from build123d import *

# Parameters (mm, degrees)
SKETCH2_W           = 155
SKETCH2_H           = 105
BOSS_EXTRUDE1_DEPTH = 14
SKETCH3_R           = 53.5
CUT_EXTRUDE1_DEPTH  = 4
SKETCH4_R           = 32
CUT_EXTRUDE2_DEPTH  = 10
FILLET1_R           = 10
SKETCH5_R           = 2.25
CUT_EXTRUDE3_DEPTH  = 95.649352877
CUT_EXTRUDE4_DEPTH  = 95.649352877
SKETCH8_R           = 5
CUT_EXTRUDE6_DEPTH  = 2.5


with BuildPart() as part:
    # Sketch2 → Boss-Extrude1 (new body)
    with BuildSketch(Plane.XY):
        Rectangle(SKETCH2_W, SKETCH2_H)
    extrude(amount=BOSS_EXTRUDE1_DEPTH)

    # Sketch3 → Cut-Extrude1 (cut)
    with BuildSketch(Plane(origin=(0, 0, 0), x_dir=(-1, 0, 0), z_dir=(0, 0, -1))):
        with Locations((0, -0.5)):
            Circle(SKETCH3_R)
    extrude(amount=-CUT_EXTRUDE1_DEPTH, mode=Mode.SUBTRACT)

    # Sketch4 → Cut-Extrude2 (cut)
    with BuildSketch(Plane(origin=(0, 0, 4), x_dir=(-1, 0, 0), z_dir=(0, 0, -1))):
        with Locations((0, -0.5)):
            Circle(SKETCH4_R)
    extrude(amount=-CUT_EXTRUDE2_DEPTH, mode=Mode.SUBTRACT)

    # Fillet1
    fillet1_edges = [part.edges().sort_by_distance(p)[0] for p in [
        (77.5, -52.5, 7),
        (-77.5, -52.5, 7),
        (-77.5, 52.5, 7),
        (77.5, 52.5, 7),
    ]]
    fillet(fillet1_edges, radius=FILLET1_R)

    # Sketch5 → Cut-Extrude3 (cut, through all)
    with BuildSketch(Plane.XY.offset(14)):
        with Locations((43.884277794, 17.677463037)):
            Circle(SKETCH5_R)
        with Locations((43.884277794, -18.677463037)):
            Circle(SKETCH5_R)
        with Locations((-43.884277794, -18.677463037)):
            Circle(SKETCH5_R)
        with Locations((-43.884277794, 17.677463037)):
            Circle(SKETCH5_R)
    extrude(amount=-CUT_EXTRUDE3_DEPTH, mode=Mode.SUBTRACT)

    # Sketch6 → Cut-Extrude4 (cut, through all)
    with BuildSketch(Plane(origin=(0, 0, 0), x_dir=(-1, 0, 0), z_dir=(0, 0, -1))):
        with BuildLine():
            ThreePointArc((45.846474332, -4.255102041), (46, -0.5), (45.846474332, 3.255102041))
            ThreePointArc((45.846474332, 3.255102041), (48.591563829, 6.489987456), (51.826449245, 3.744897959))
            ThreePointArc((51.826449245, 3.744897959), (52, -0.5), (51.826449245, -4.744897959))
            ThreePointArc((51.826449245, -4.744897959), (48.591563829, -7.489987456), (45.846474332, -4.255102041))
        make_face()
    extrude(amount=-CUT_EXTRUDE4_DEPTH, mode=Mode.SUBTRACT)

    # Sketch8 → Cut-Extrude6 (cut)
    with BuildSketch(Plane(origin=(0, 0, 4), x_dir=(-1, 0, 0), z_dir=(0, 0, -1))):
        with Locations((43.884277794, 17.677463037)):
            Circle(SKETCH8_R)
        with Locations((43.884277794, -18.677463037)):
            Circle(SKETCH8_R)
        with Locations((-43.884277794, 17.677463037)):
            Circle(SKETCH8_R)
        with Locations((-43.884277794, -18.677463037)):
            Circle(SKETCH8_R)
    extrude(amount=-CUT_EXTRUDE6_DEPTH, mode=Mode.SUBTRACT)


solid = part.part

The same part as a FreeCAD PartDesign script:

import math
import FreeCAD as App
import Part
import Sketcher
Q = App.Units.Quantity


def edges_at(feature, points):
    """Names of the edges that pass closest to the given points."""
    edges = feature.Shape.Edges
    near = lambda p: min(range(len(edges)), key=lambda i: edges[i].distToShape(Part.Vertex(*p))[0])
    return sorted({f"Edge{near(p) + 1}" for p in points})

doc = App.newDocument("Part")
params = doc.addObject("Spreadsheet::Sheet", "Params")
for row, (alias, value) in enumerate([
    ("sketch1_width", "155 mm"),
    ("sketch1_height", "105 mm"),
    ("pad1_length", "14 mm"),
    ("sketch2_diameter", "107 mm"),
    ("pocket1_length", "4 mm"),
    ("sketch3_diameter", "64 mm"),
    ("pocket2_length", "10 mm"),
    ("fillet_radius", "10 mm"),
    ("sketch4_diameter", "4.5 mm"),
    ("sketch5_radius", "46 mm"),
    ("sketch5_radius2", "3 mm"),
    ("sketch6_diameter", "10 mm"),
    ("pocket5_length", "2.5 mm"),
], start=1):
    params.set(f"A{row}", alias)
    params.set(f"B{row}", "=" + value)
    params.setAlias(f"B{row}", alias)

body = doc.addObject("PartDesign::Body", "Body")

sketch1 = doc.addObject("Sketcher::SketchObject", "Sketch")
body.addObject(sketch1)
sketch1.AttachmentSupport = (doc.XY_Plane, [""])
sketch1.MapMode = "FlatFace"
sketch1.addGeometry(Part.LineSegment(App.Vector(-78, 52, 0), App.Vector(-78, -52, 0)), False)
sketch1.addGeometry(Part.LineSegment(App.Vector(-78, -52, 0), App.Vector(78, -52, 0)), False)
sketch1.addGeometry(Part.LineSegment(App.Vector(78, -52, 0), App.Vector(78, 52, 0)), False)
sketch1.addGeometry(Part.LineSegment(App.Vector(78, 52, 0), App.Vector(-78, 52, 0)), False)
sketch1.addConstraint(Sketcher.Constraint("Coincident", 0, 2, 1, 1))
sketch1.addConstraint(Sketcher.Constraint("Coincident", 1, 2, 2, 1))
sketch1.addConstraint(Sketcher.Constraint("Coincident", 2, 2, 3, 1))
sketch1.addConstraint(Sketcher.Constraint("Coincident", 3, 2, 0, 1))
sketch1.addConstraint(Sketcher.Constraint("Vertical", 0))
sketch1.addConstraint(Sketcher.Constraint("Horizontal", 1))
sketch1.addConstraint(Sketcher.Constraint("Vertical", 2))
sketch1.addConstraint(Sketcher.Constraint("Horizontal", 3))
sketch1.addConstraint(Sketcher.Constraint("Symmetric", 0, 2, 2, 2, -1, 1))
sketch1.addConstraint(Sketcher.Constraint("DistanceX", 1, 1, 1, 2, Q("155 mm")))
sketch1.addConstraint(Sketcher.Constraint("DistanceY", 0, 2, 0, 1, Q("105 mm")))
sketch1.setExpression("Constraints[9]", "Params.sketch1_width")
sketch1.setExpression("Constraints[10]", "Params.sketch1_height")
pad1 = doc.addObject("PartDesign::Pad", "Pad")
body.addObject(pad1)
pad1.Profile = sketch1
pad1.setExpression("Length", "Params.pad1_length")

sketch2 = doc.addObject("Sketcher::SketchObject", "Sketch001")
body.addObject(sketch2)
sketch2.AttachmentSupport = (doc.XY_Plane, [""])
sketch2.MapMode = "FlatFace"
sketch2.addGeometry(Part.Circle(App.Vector(0, 0, 0), App.Vector(0, 0, 1), 54), False)
sketch2.addConstraint(Sketcher.Constraint("PointOnObject", 0, 3, -2))
sketch2.addConstraint(Sketcher.Constraint("Diameter", 0, Q("107 mm")))
sketch2.addConstraint(Sketcher.Constraint("DistanceY", 0, 3, -1, 1, Q("0.5 mm")))
sketch2.setExpression("Constraints[1]", "Params.sketch2_diameter")
pocket1 = doc.addObject("PartDesign::Pocket", "Pocket")
body.addObject(pocket1)
pocket1.Profile = sketch2
pocket1.setExpression("Length", "Params.pocket1_length")
pocket1.Reversed = True

sketch3 = doc.addObject("Sketcher::SketchObject", "Sketch002")
body.addObject(sketch3)
sketch3.AttachmentSupport = (doc.XY_Plane, [""])
sketch3.MapMode = "FlatFace"
sketch3.AttachmentOffset = App.Placement(App.Vector(0, 0, 4), App.Rotation())
sketch3.addGeometry(Part.Circle(App.Vector(0, 0, 0), App.Vector(0, 0, 1), 32), False)
sketch3.addConstraint(Sketcher.Constraint("PointOnObject", 0, 3, -2))
sketch3.addConstraint(Sketcher.Constraint("Diameter", 0, Q("64 mm")))
sketch3.addConstraint(Sketcher.Constraint("DistanceY", 0, 3, -1, 1, Q("0.5 mm")))
sketch3.setExpression("Constraints[1]", "Params.sketch3_diameter")
pocket2 = doc.addObject("PartDesign::Pocket", "Pocket001")
body.addObject(pocket2)
pocket2.Profile = sketch3
pocket2.setExpression("Length", "Params.pocket2_length")
pocket2.Reversed = True
doc.recompute()

fillet = doc.addObject("PartDesign::Fillet", "Fillet")
body.addObject(fillet)
fillet.Base = (pocket2, edges_at(pocket2, [
    (77.5, -52.5, 7),
    (-77.5, -52.5, 7),
    (-77.5, 52.5, 7),
    (77.5, 52.5, 7),
]))
fillet.setExpression("Radius", "Params.fillet_radius")

sketch4 = doc.addObject("Sketcher::SketchObject", "Sketch003")
body.addObject(sketch4)
sketch4.AttachmentSupport = (doc.XY_Plane, [""])
sketch4.MapMode = "FlatFace"
sketch4.AttachmentOffset = App.Placement(App.Vector(0, 0, 14), App.Rotation())
sketch4.addGeometry(Part.Circle(App.Vector(43.9, 17.7, 0), App.Vector(0, 0, 1), 2.2), False)
sketch4.addGeometry(Part.Circle(App.Vector(43.9, -18.7, 0), App.Vector(0, 0, 1), 2.2), False)
sketch4.addGeometry(Part.Circle(App.Vector(-43.9, -18.7, 0), App.Vector(0, 0, 1), 2.2), False)
sketch4.addGeometry(Part.Circle(App.Vector(-43.9, 17.7, 0), App.Vector(0, 0, 1), 2.2), False)
sketch4.addConstraint(Sketcher.Constraint("Equal", 0, 1))
sketch4.addConstraint(Sketcher.Constraint("Equal", 1, 2))
sketch4.addConstraint(Sketcher.Constraint("Equal", 2, 3))
sketch4.addConstraint(Sketcher.Constraint("Symmetric", 1, 3, 2, 3, -2))
sketch4.addConstraint(Sketcher.Constraint("Symmetric", 0, 3, 3, 3, -2))
sketch4.addConstraint(Sketcher.Constraint("Vertical", 0, 3, 1, 3))
sketch4.addConstraint(Sketcher.Constraint("Diameter", 0, Q("4.5 mm")))
sketch4.addConstraint(Sketcher.Constraint("DistanceX", -1, 1, 0, 3, Q("43.884278 mm")))
sketch4.addConstraint(Sketcher.Constraint("DistanceY", -1, 1, 0, 3, Q("17.677463 mm")))
sketch4.addConstraint(Sketcher.Constraint("DistanceY", 1, 3, -1, 1, Q("18.677463 mm")))
sketch4.setExpression("Constraints[6]", "Params.sketch4_diameter")
pocket3 = doc.addObject("PartDesign::Pocket", "Pocket002")
body.addObject(pocket3)
pocket3.Profile = sketch4
pocket3.Type = "ThroughAll"

sketch5 = doc.addObject("Sketcher::SketchObject", "Sketch004")
body.addObject(sketch5)
sketch5.AttachmentSupport = (doc.XY_Plane, [""])
sketch5.MapMode = "FlatFace"
sketch5.addGeometry(Part.ArcOfCircle(Part.Circle(App.Vector(0, -0.5, 0), App.Vector(0, 0, 1), 46), math.radians(175.32), math.radians(184.68)), False)
sketch5.addGeometry(Part.ArcOfCircle(Part.Circle(App.Vector(-48.8, -4.5, 0), App.Vector(0, 0, 1), 3), math.radians(-175), math.radians(5)), False)
sketch5.addGeometry(Part.ArcOfCircle(Part.Circle(App.Vector(0, -0.5, 0), App.Vector(0, 0, 1), 52), math.radians(175.32), math.radians(184.68)), False)
sketch5.addGeometry(Part.ArcOfCircle(Part.Circle(App.Vector(-48.8, 3.5, 0), App.Vector(0, 0, 1), 3), math.radians(-5), math.radians(175)), False)
sketch5.addConstraint(Sketcher.Constraint("Tangent", 0, 2, 1, 2))
sketch5.addConstraint(Sketcher.Constraint("Tangent", 1, 1, 2, 2))
sketch5.addConstraint(Sketcher.Constraint("Tangent", 2, 1, 3, 2))
sketch5.addConstraint(Sketcher.Constraint("Tangent", 3, 1, 0, 1))
sketch5.addConstraint(Sketcher.Constraint("Coincident", 2, 3, 0, 3))
sketch5.addConstraint(Sketcher.Constraint("PointOnObject", 0, 3, -2))
sketch5.addConstraint(Sketcher.Constraint("Vertical", 1, 3, 3, 3))
sketch5.addConstraint(Sketcher.Constraint("Radius", 0, Q("46 mm")))
sketch5.addConstraint(Sketcher.Constraint("Radius", 1, Q("3 mm")))
sketch5.addConstraint(Sketcher.Constraint("DistanceY", 1, 3, 0, 3, Q("4 mm")))
sketch5.addConstraint(Sketcher.Constraint("DistanceY", 0, 3, -1, 1, Q("0.5 mm")))
sketch5.setExpression("Constraints[7]", "Params.sketch5_radius")
sketch5.setExpression("Constraints[8]", "Params.sketch5_radius2")
pocket4 = doc.addObject("PartDesign::Pocket", "Pocket003")
body.addObject(pocket4)
pocket4.Profile = sketch5
pocket4.Type = "ThroughAll"
pocket4.Reversed = True

sketch6 = doc.addObject("Sketcher::SketchObject", "Sketch005")
body.addObject(sketch6)
sketch6.AttachmentSupport = (doc.XY_Plane, [""])
sketch6.MapMode = "FlatFace"
sketch6.AttachmentOffset = App.Placement(App.Vector(0, 0, 4), App.Rotation())
sketch6.addGeometry(Part.Circle(App.Vector(-44, 18, 0), App.Vector(0, 0, 1), 5), False)
sketch6.addGeometry(Part.Circle(App.Vector(-44, -19, 0), App.Vector(0, 0, 1), 5), False)
sketch6.addGeometry(Part.Circle(App.Vector(44, 18, 0), App.Vector(0, 0, 1), 5), False)
sketch6.addGeometry(Part.Circle(App.Vector(44, -19, 0), App.Vector(0, 0, 1), 5), False)
sketch6.addConstraint(Sketcher.Constraint("Equal", 0, 1))
sketch6.addConstraint(Sketcher.Constraint("Equal", 1, 2))
sketch6.addConstraint(Sketcher.Constraint("Equal", 2, 3))
sketch6.addConstraint(Sketcher.Constraint("Symmetric", 0, 3, 2, 3, -2))
sketch6.addConstraint(Sketcher.Constraint("Symmetric", 1, 3, 3, 3, -2))
sketch6.addConstraint(Sketcher.Constraint("Vertical", 0, 3, 1, 3))
sketch6.addConstraint(Sketcher.Constraint("Diameter", 0, Q("10 mm")))
sketch6.addConstraint(Sketcher.Constraint("DistanceX", 0, 3, -1, 1, Q("43.884278 mm")))
sketch6.addConstraint(Sketcher.Constraint("DistanceY", -1, 1, 0, 3, Q("17.677463 mm")))
sketch6.addConstraint(Sketcher.Constraint("DistanceY", 1, 3, -1, 1, Q("18.677463 mm")))
sketch6.setExpression("Constraints[6]", "Params.sketch6_diameter")
pocket5 = doc.addObject("PartDesign::Pocket", "Pocket004")
body.addObject(pocket5)
pocket5.Profile = sketch6
pocket5.setExpression("Length", "Params.pocket5_length")
pocket5.Reversed = True

doc.recompute()
